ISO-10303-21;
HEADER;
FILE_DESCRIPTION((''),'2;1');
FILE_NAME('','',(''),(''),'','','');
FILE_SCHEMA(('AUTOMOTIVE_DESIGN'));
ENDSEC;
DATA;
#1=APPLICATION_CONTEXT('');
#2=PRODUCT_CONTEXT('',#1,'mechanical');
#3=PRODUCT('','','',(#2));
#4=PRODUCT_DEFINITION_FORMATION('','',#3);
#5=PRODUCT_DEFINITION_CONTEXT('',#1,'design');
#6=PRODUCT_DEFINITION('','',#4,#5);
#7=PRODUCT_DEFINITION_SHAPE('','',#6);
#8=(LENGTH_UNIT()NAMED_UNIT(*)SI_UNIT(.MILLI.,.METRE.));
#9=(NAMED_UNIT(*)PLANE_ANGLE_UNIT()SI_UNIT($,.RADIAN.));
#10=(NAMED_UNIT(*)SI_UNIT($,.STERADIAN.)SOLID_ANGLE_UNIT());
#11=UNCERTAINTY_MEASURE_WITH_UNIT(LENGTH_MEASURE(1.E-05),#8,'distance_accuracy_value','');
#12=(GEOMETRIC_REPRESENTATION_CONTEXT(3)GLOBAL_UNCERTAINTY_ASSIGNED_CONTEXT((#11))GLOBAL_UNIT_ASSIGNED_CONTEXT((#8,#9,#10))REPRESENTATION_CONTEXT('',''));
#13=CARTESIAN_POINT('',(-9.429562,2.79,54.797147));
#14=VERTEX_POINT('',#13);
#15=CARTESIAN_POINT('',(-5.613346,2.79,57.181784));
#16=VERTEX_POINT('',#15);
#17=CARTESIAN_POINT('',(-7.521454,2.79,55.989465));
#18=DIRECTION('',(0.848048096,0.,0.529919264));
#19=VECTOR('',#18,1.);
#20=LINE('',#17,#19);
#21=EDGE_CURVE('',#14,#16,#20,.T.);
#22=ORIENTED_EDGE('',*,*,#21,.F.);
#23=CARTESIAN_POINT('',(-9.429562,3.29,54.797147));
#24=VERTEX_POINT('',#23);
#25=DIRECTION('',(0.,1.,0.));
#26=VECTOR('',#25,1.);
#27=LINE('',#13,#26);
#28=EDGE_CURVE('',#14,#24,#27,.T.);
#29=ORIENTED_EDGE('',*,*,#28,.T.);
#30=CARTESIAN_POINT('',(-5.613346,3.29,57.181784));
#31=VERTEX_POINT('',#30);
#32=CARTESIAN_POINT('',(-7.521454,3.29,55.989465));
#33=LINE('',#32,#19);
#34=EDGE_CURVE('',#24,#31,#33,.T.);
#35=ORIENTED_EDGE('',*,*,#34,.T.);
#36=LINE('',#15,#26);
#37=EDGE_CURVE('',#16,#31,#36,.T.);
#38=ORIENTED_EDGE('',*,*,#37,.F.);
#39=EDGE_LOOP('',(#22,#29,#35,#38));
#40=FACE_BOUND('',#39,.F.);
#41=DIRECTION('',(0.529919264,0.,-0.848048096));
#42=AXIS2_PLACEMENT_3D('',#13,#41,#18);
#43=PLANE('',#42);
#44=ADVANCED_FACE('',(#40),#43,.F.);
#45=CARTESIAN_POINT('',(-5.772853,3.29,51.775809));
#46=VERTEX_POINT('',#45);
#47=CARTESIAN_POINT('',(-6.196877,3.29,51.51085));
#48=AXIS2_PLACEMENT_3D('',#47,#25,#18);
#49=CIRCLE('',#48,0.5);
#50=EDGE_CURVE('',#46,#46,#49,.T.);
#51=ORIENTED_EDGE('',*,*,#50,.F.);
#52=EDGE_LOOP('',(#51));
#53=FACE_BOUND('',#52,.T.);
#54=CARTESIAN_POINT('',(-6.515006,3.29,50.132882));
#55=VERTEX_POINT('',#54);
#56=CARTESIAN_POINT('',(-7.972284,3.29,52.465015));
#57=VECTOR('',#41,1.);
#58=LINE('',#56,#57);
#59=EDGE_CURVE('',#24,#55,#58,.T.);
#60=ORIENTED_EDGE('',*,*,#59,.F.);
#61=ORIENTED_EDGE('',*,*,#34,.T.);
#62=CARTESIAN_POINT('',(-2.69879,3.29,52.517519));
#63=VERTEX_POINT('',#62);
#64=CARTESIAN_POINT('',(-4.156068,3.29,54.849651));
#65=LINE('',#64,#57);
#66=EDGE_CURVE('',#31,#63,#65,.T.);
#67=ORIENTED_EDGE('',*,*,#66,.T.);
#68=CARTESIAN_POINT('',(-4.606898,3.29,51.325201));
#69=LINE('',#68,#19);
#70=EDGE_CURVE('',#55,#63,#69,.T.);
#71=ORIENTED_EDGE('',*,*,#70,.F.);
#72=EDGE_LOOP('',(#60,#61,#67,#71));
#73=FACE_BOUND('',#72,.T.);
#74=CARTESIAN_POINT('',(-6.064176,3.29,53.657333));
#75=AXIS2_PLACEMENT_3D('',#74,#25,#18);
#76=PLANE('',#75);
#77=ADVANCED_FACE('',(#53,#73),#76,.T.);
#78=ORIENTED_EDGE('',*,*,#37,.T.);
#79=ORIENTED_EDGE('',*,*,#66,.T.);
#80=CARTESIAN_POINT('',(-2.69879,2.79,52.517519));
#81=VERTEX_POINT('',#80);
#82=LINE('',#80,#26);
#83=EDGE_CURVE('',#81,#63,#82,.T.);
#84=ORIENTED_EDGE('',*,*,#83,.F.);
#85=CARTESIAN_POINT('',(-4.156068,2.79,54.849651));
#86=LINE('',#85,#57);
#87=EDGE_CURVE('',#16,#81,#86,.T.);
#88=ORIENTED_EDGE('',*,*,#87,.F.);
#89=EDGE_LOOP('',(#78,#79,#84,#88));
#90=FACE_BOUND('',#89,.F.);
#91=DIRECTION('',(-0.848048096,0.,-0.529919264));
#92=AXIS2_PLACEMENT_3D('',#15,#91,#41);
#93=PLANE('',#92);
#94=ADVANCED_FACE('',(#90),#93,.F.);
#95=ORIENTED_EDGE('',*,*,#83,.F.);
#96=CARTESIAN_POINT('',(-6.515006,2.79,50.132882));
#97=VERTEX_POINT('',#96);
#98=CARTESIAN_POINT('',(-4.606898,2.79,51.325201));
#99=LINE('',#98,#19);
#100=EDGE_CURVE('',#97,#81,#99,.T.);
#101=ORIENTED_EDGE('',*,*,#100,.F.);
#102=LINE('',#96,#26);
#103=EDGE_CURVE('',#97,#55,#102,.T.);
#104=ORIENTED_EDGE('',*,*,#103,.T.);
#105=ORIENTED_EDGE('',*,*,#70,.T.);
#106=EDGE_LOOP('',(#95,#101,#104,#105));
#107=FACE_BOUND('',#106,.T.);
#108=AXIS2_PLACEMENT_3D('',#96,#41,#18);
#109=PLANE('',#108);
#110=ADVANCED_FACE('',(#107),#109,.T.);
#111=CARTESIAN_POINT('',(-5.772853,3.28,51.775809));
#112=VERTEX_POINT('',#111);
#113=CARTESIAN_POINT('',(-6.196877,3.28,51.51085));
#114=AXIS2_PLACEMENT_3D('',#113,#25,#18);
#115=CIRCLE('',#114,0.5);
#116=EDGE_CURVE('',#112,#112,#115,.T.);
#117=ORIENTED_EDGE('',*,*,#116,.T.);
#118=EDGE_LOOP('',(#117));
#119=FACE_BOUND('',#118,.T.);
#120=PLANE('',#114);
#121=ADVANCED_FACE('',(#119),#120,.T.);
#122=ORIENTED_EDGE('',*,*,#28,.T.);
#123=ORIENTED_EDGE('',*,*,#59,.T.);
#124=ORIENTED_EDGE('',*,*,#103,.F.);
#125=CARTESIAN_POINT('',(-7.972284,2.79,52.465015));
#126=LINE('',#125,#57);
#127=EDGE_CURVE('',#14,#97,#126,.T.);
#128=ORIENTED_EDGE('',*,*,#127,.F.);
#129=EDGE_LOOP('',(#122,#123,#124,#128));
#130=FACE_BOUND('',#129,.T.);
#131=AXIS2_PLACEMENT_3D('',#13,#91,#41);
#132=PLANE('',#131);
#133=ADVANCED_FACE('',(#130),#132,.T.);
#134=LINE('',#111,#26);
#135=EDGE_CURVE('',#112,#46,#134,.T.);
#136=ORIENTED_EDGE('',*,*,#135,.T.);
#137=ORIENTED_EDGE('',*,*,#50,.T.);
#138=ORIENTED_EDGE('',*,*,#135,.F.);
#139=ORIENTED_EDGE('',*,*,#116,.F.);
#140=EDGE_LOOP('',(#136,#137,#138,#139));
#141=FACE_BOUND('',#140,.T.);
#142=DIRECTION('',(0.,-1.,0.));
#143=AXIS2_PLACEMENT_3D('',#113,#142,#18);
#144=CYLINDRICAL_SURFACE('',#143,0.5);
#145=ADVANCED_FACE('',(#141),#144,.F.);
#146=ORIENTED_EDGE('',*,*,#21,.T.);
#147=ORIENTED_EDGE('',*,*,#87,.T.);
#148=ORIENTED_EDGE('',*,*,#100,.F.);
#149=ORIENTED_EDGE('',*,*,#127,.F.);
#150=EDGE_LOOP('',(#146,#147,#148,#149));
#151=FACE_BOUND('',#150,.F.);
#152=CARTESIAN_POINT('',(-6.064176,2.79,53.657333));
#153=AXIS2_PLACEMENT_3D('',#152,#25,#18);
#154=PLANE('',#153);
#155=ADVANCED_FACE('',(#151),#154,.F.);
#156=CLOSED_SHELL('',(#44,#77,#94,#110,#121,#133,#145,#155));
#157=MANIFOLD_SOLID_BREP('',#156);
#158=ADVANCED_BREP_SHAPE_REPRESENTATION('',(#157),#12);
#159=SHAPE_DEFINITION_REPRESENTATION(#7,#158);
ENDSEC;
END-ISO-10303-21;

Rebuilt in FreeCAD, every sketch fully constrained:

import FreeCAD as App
import Part
import Sketcher

V = App.Vector
Q = App.Units.Quantity


def add_polygon(sketch, points):
    """Adds a closed chain of lines whose ends are joined by coincident constraints."""
    first, n = sketch.GeometryCount, len(points)
    for a, b in zip(points, points[1:] + points[:1]):
        sketch.addGeometry(Part.LineSegment(App.Vector(*a, 0), App.Vector(*b, 0)), False)
    for i in range(n):
        sketch.addConstraint(Sketcher.Constraint("Coincident", first + i, 2, first + (i + 1) % n, 1))

doc = App.newDocument("Part")
params = doc.addObject("Spreadsheet::Sheet", "Params")
for row, (alias, value) in enumerate([
    ("sketch1_diameter", "1 mm"),
    ("pad1_length", "0.01 mm"),
    ("sketch2_width", "4.5 mm"),
    ("sketch2_height", "5.5 mm"),
    ("pad2_length", "0.5 mm"),
], start=1):
    params.set(f"A{row}", alias)
    params.set(f"B{row}", "=" + value)
    params.setAlias(f"B{row}", alias)

body = doc.addObject("PartDesign::Body", "Body")

sketch1 = body.newObject("Sketcher::SketchObject", "Sketch")
sketch1.AttachmentSupport = (doc.getObject("XY_Plane"), [""])
sketch1.MapMode = "FlatFace"
sketch1.AttachmentOffset = App.Placement(V(0, 0, 0.49), App.Rotation())
sketch1.addGeometry(Part.Circle(V(1, 4.5, 0), V(0, 0, 1), 0.5), False)
sketch1.addConstraint([
    Sketcher.Constraint("Diameter", 0, Q("1 mm")),
    Sketcher.Constraint("DistanceX", -1, 1, 0, 3, Q("1 mm")),
    Sketcher.Constraint("DistanceY", -1, 1, 0, 3, Q("4.5 mm")),
])
sketch1.setExpression("Constraints[0]", "Params.sketch1_diameter")
pad1 = body.newObject("PartDesign::Pad", "Pad")
pad1.Profile = sketch1
pad1.setExpression("Length", "Params.pad1_length")
body2 = doc.addObject("PartDesign::Body", "Body001")

sketch2 = body2.newObject("Sketcher::SketchObject", "Sketch001")
sketch2.AttachmentSupport = (doc.getObject("XY_Plane001"), [""])
sketch2.MapMode = "FlatFace"
add_polygon(sketch2, [(0, 5.5), (0, 0), (4.5, 0), (4.5, 5.5)])
sketch2.addConstraint([
    Sketcher.Constraint("Vertical", 0),
    Sketcher.Constraint("Horizontal", 1),
    Sketcher.Constraint("Vertical", 2),
    Sketcher.Constraint("Horizontal", 3),
    Sketcher.Constraint("Coincident", 0, 2, -1, 1),
    Sketcher.Constraint("DistanceX", 1, 1, 1, 2, Q("4.5 mm")),
    Sketcher.Constraint("DistanceY", 0, 2, 0, 1, Q("5.5 mm")),
])
sketch2.setExpression("Constraints[9]", "Params.sketch2_width")
sketch2.setExpression("Constraints[10]", "Params.sketch2_height")
pad2 = body2.newObject("PartDesign::Pad", "Pad001")
pad2.Profile = sketch2
pad2.setExpression("Length", "Params.pad2_length")
doc.recompute()

boolean = body2.newObject("PartDesign::Boolean", "Boolean")
boolean.Type = "Cut"
boolean.addObjects([body])
body3 = doc.addObject("PartDesign::Body", "Body002")
doc.recompute()

body2.Placement = App.Placement(V(0, 0, 0), App.Rotation(V(1, 0, 0), 270))
boolean2 = body3.newObject("PartDesign::Boolean", "Boolean001")
boolean2.Type = "Fuse"
boolean2.addObjects([body2])
body4 = doc.addObject("PartDesign::Body", "Body003")
doc.recompute()

body3.Placement = App.Placement(V(0, 0, 0), App.Rotation(V(0, 1, 0), 328))
boolean3 = body4.newObject("PartDesign::Boolean", "Boolean002")
boolean3.Type = "Fuse"
boolean3.addObjects([body3])
body5 = doc.addObject("PartDesign::Body", "Body004")
doc.recompute()

body4.Placement = App.Placement(V(-9.429562, 2.79, 54.797147), App.Rotation(V(0, 0, 1), 0))
boolean4 = body5.newObject("PartDesign::Boolean", "Boolean003")
boolean4.Type = "Fuse"
boolean4.addObjects([body4])

doc.recompute()
